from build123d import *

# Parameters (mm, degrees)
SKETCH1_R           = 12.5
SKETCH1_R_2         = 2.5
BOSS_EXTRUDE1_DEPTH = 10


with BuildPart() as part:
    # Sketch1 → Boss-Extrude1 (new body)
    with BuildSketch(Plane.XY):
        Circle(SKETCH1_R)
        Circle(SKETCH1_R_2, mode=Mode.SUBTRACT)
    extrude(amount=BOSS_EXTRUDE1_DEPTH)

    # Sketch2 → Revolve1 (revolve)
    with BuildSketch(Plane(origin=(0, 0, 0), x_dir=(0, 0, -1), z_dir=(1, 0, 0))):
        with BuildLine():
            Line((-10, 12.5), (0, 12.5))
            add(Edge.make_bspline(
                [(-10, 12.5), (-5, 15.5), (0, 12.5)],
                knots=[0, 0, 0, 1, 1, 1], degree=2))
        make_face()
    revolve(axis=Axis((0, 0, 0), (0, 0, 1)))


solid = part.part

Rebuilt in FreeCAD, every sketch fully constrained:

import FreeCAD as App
import Part
import Sketcher

V = App.Vector

doc = App.newDocument("Part")
body = doc.addObject("PartDesign::Body", "Body")

# Sketch on XY plane
sketch1 = body.newObject("Sketcher::SketchObject", "Sketch")
sketch1.AttachmentSupport = (doc.getObject("XY_Plane"), [""])
sketch1.MapMode = "FlatFace"
sketch1.addGeometry([
    Part.Circle(V(0, 0, 0), V(0, 0, 1), 12.5),
    Part.Circle(V(0, 0, 0), V(0, 0, 1), 2.5),
], False)
sketch1.addConstraint([
    Sketcher.Constraint("Coincident", 0, 3, -1, 1),
    Sketcher.Constraint("Coincident", 1, 3, -1, 1),
    Sketcher.Constraint("Diameter", 0, 25.0),
    Sketcher.Constraint("Diameter", 1, 5.0),
])
pad1 = body.newObject("PartDesign::Pad", "Pad")
pad1.Profile = sketch1
pad1.Length = 10

# Sketch on YZ plane
sketch2 = body.newObject("Sketcher::SketchObject", "Sketch001")
sketch2.AttachmentSupport = (doc.getObject("YZ_Plane"), [""])
sketch2.MapMode = "FlatFace"
sketch2.addGeometry([
    Part.LineSegment(V(12.5, 10, 0), V(12.5, 0, 0)),
    Part.BSplineCurve([V(12.5, 10, 0), V(15.5, 5, 0), V(12.5, 0, 0)], [3, 3], [0, 1], False, 2, [1, 1, 1], False),
], False)
sketch2.addConstraint([
    Sketcher.Constraint("Block", 1),
    Sketcher.Constraint("Coincident", 0, 1, 1, 1),
    Sketcher.Constraint("Coincident", 1, 2, 0, 2),
])
revolution = body.newObject("PartDesign::Revolution", "Revolution")
revolution.Profile = sketch2
revolution.ReferenceAxis = (sketch2, ["V_Axis"])
revolution.Angle = 360

doc.recompute()
